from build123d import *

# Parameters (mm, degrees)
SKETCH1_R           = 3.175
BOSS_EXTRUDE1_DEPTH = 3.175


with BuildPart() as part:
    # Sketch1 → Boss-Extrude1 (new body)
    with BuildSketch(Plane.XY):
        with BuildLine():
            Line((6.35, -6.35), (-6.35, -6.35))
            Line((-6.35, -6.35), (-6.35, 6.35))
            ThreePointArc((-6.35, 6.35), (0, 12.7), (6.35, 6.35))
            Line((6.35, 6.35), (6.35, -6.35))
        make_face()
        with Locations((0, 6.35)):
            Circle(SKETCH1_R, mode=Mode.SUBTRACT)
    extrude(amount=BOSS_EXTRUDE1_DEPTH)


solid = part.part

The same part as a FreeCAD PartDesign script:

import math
import FreeCAD as App
import Part
import Sketcher

V = App.Vector
Q = App.Units.Quantity

doc = App.newDocument("Part")
body = doc.addObject("PartDesign::Body", "Body")

# Sketch on XY plane
sketch1 = body.newObject("Sketcher::SketchObject", "Sketch")
sketch1.AttachmentSupport = (doc.getObject("XY_Plane"), [""])
sketch1.MapMode = "FlatFace"
sketch1.addGeometry([
    Part.LineSegment(V(-6.3, -6.3, 0), V(6.3, -6.3, 0)),  # 0
    Part.LineSegment(V(6.3, -6.3, 0), V(6.3, 6.3, 0)),  # 1
    Part.ArcOfCircle(Part.Circle(V(0, 6.3, 0), V(0, 0, 1), 6.3), math.radians(0), math.radians(180)),  # 2
    Part.LineSegment(V(-6.3, 6.3, 0), V(-6.3, -6.3, 0)),  # 3
    Part.Circle(V(0, 6.3, 0), V(0, 0, 1), 3.2),  # 4
], False)
sketch1.addConstraint([
    Sketcher.Constraint("Coincident", 0, 2, 1, 1),
    Sketcher.Constraint("Tangent", 1, 2, 2, 1),
    Sketcher.Constraint("Tangent", 2, 2, 3, 1),
    Sketcher.Constraint("Coincident", 3, 2, 0, 1),
    Sketcher.Constraint("Horizontal", 0),
    Sketcher.Constraint("Vertical", 1),
    Sketcher.Constraint("Vertical", 3),
    Sketcher.Constraint("Coincident", 4, 3, 2, 3),
    Sketcher.Constraint("Symmetric", 0, 2, 2, 2, -1, 1),
    Sketcher.Constraint("Equal", 0, 1),
    Sketcher.Constraint("Diameter", 4, Q("0.25 in")),
    Sketcher.Constraint("Radius", 2, Q("0.25 in")),
])
pad1 = body.newObject("PartDesign::Pad", "Pad")
pad1.Profile = sketch1
pad1.Length = Q("0.125 in")

doc.recompute()
